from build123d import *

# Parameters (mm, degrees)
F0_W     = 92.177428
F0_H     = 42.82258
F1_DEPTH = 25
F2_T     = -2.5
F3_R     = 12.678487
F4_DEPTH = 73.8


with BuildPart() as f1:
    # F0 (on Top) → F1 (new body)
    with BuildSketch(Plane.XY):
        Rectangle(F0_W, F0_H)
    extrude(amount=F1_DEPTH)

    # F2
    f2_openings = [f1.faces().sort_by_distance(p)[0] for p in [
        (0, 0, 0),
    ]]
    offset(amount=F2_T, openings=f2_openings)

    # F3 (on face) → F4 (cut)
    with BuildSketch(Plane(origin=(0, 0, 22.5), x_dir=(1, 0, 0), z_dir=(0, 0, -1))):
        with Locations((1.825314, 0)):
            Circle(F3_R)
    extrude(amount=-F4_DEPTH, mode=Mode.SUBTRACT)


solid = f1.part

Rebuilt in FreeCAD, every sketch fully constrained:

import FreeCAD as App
import Part
import Sketcher

V = App.Vector


def faces_at(feature, points):
    """Names of the faces that lie closest to the given points."""
    faces = feature.Shape.Faces
    near = lambda p: min(range(len(faces)), key=lambda i: faces[i].distToShape(Part.Vertex(*p))[0])
    return sorted({f"Face{near(p) + 1}" for p in points})


def add_polygon(sketch, points):
    """Adds a closed chain of lines whose ends are joined by coincident constraints."""
    first, n = sketch.GeometryCount, len(points)
    for a, b in zip(points, points[1:] + points[:1]):
        sketch.addGeometry(Part.LineSegment(App.Vector(*a, 0), App.Vector(*b, 0)), False)
    for i in range(n):
        sketch.addConstraint(Sketcher.Constraint("Coincident", first + i, 2, first + (i + 1) % n, 1))

doc = App.newDocument("Part")
body = doc.addObject("PartDesign::Body", "Body")

# Sketch on XY plane
sketch1 = body.newObject("Sketcher::SketchObject", "Sketch")
sketch1.AttachmentSupport = (doc.getObject("XY_Plane"), [""])
sketch1.MapMode = "FlatFace"
add_polygon(sketch1, [(-46, 21), (-46, -21), (46, -21), (46, 21)])  # lines 0-3
sketch1.addConstraint([
    Sketcher.Constraint("Vertical", 0),
    Sketcher.Constraint("Horizontal", 1),
    Sketcher.Constraint("Vertical", 2),
    Sketcher.Constraint("Horizontal", 3),
    Sketcher.Constraint("Symmetric", 0, 2, 2, 2, -1, 1),
    Sketcher.Constraint("DistanceX", 1, 1, 1, 2, 92.177428),
    Sketcher.Constraint("DistanceY", 0, 2, 0, 1, 42.82258),
])
pad1 = body.newObject("PartDesign::Pad", "Pad")
pad1.Profile = sketch1
pad1.Length = 25
doc.recompute()

thickness = body.newObject("PartDesign::Thickness", "Thickness")
thickness.Base = (pad1, faces_at(pad1, [(0, 0, 0)]))
thickness.Value = 2.5
thickness.Reversed = True
thickness.Join = "Arc"

# Sketch on XY plane
sketch2 = body.newObject("Sketcher::SketchObject", "Sketch001")
sketch2.AttachmentSupport = (doc.getObject("XY_Plane"), [""])
sketch2.MapMode = "FlatFace"
sketch2.AttachmentOffset = App.Placement(V(0, 0, 22.5), App.Rotation())
sketch2.addGeometry(Part.Circle(V(2, 0, 0), V(0, 0, 1), 13), False)
sketch2.addConstraint([
    Sketcher.Constraint("PointOnObject", 0, 3, -1),
    Sketcher.Constraint("Diameter", 0, 25.356974),
    Sketcher.Constraint("DistanceX", -1, 1, 0, 3, 1.825314),
])
pocket1 = body.newObject("PartDesign::Pocket", "Pocket")
pocket1.Profile = sketch2
pocket1.Length = 73.8
pocket1.Reversed = True

doc.recompute()
